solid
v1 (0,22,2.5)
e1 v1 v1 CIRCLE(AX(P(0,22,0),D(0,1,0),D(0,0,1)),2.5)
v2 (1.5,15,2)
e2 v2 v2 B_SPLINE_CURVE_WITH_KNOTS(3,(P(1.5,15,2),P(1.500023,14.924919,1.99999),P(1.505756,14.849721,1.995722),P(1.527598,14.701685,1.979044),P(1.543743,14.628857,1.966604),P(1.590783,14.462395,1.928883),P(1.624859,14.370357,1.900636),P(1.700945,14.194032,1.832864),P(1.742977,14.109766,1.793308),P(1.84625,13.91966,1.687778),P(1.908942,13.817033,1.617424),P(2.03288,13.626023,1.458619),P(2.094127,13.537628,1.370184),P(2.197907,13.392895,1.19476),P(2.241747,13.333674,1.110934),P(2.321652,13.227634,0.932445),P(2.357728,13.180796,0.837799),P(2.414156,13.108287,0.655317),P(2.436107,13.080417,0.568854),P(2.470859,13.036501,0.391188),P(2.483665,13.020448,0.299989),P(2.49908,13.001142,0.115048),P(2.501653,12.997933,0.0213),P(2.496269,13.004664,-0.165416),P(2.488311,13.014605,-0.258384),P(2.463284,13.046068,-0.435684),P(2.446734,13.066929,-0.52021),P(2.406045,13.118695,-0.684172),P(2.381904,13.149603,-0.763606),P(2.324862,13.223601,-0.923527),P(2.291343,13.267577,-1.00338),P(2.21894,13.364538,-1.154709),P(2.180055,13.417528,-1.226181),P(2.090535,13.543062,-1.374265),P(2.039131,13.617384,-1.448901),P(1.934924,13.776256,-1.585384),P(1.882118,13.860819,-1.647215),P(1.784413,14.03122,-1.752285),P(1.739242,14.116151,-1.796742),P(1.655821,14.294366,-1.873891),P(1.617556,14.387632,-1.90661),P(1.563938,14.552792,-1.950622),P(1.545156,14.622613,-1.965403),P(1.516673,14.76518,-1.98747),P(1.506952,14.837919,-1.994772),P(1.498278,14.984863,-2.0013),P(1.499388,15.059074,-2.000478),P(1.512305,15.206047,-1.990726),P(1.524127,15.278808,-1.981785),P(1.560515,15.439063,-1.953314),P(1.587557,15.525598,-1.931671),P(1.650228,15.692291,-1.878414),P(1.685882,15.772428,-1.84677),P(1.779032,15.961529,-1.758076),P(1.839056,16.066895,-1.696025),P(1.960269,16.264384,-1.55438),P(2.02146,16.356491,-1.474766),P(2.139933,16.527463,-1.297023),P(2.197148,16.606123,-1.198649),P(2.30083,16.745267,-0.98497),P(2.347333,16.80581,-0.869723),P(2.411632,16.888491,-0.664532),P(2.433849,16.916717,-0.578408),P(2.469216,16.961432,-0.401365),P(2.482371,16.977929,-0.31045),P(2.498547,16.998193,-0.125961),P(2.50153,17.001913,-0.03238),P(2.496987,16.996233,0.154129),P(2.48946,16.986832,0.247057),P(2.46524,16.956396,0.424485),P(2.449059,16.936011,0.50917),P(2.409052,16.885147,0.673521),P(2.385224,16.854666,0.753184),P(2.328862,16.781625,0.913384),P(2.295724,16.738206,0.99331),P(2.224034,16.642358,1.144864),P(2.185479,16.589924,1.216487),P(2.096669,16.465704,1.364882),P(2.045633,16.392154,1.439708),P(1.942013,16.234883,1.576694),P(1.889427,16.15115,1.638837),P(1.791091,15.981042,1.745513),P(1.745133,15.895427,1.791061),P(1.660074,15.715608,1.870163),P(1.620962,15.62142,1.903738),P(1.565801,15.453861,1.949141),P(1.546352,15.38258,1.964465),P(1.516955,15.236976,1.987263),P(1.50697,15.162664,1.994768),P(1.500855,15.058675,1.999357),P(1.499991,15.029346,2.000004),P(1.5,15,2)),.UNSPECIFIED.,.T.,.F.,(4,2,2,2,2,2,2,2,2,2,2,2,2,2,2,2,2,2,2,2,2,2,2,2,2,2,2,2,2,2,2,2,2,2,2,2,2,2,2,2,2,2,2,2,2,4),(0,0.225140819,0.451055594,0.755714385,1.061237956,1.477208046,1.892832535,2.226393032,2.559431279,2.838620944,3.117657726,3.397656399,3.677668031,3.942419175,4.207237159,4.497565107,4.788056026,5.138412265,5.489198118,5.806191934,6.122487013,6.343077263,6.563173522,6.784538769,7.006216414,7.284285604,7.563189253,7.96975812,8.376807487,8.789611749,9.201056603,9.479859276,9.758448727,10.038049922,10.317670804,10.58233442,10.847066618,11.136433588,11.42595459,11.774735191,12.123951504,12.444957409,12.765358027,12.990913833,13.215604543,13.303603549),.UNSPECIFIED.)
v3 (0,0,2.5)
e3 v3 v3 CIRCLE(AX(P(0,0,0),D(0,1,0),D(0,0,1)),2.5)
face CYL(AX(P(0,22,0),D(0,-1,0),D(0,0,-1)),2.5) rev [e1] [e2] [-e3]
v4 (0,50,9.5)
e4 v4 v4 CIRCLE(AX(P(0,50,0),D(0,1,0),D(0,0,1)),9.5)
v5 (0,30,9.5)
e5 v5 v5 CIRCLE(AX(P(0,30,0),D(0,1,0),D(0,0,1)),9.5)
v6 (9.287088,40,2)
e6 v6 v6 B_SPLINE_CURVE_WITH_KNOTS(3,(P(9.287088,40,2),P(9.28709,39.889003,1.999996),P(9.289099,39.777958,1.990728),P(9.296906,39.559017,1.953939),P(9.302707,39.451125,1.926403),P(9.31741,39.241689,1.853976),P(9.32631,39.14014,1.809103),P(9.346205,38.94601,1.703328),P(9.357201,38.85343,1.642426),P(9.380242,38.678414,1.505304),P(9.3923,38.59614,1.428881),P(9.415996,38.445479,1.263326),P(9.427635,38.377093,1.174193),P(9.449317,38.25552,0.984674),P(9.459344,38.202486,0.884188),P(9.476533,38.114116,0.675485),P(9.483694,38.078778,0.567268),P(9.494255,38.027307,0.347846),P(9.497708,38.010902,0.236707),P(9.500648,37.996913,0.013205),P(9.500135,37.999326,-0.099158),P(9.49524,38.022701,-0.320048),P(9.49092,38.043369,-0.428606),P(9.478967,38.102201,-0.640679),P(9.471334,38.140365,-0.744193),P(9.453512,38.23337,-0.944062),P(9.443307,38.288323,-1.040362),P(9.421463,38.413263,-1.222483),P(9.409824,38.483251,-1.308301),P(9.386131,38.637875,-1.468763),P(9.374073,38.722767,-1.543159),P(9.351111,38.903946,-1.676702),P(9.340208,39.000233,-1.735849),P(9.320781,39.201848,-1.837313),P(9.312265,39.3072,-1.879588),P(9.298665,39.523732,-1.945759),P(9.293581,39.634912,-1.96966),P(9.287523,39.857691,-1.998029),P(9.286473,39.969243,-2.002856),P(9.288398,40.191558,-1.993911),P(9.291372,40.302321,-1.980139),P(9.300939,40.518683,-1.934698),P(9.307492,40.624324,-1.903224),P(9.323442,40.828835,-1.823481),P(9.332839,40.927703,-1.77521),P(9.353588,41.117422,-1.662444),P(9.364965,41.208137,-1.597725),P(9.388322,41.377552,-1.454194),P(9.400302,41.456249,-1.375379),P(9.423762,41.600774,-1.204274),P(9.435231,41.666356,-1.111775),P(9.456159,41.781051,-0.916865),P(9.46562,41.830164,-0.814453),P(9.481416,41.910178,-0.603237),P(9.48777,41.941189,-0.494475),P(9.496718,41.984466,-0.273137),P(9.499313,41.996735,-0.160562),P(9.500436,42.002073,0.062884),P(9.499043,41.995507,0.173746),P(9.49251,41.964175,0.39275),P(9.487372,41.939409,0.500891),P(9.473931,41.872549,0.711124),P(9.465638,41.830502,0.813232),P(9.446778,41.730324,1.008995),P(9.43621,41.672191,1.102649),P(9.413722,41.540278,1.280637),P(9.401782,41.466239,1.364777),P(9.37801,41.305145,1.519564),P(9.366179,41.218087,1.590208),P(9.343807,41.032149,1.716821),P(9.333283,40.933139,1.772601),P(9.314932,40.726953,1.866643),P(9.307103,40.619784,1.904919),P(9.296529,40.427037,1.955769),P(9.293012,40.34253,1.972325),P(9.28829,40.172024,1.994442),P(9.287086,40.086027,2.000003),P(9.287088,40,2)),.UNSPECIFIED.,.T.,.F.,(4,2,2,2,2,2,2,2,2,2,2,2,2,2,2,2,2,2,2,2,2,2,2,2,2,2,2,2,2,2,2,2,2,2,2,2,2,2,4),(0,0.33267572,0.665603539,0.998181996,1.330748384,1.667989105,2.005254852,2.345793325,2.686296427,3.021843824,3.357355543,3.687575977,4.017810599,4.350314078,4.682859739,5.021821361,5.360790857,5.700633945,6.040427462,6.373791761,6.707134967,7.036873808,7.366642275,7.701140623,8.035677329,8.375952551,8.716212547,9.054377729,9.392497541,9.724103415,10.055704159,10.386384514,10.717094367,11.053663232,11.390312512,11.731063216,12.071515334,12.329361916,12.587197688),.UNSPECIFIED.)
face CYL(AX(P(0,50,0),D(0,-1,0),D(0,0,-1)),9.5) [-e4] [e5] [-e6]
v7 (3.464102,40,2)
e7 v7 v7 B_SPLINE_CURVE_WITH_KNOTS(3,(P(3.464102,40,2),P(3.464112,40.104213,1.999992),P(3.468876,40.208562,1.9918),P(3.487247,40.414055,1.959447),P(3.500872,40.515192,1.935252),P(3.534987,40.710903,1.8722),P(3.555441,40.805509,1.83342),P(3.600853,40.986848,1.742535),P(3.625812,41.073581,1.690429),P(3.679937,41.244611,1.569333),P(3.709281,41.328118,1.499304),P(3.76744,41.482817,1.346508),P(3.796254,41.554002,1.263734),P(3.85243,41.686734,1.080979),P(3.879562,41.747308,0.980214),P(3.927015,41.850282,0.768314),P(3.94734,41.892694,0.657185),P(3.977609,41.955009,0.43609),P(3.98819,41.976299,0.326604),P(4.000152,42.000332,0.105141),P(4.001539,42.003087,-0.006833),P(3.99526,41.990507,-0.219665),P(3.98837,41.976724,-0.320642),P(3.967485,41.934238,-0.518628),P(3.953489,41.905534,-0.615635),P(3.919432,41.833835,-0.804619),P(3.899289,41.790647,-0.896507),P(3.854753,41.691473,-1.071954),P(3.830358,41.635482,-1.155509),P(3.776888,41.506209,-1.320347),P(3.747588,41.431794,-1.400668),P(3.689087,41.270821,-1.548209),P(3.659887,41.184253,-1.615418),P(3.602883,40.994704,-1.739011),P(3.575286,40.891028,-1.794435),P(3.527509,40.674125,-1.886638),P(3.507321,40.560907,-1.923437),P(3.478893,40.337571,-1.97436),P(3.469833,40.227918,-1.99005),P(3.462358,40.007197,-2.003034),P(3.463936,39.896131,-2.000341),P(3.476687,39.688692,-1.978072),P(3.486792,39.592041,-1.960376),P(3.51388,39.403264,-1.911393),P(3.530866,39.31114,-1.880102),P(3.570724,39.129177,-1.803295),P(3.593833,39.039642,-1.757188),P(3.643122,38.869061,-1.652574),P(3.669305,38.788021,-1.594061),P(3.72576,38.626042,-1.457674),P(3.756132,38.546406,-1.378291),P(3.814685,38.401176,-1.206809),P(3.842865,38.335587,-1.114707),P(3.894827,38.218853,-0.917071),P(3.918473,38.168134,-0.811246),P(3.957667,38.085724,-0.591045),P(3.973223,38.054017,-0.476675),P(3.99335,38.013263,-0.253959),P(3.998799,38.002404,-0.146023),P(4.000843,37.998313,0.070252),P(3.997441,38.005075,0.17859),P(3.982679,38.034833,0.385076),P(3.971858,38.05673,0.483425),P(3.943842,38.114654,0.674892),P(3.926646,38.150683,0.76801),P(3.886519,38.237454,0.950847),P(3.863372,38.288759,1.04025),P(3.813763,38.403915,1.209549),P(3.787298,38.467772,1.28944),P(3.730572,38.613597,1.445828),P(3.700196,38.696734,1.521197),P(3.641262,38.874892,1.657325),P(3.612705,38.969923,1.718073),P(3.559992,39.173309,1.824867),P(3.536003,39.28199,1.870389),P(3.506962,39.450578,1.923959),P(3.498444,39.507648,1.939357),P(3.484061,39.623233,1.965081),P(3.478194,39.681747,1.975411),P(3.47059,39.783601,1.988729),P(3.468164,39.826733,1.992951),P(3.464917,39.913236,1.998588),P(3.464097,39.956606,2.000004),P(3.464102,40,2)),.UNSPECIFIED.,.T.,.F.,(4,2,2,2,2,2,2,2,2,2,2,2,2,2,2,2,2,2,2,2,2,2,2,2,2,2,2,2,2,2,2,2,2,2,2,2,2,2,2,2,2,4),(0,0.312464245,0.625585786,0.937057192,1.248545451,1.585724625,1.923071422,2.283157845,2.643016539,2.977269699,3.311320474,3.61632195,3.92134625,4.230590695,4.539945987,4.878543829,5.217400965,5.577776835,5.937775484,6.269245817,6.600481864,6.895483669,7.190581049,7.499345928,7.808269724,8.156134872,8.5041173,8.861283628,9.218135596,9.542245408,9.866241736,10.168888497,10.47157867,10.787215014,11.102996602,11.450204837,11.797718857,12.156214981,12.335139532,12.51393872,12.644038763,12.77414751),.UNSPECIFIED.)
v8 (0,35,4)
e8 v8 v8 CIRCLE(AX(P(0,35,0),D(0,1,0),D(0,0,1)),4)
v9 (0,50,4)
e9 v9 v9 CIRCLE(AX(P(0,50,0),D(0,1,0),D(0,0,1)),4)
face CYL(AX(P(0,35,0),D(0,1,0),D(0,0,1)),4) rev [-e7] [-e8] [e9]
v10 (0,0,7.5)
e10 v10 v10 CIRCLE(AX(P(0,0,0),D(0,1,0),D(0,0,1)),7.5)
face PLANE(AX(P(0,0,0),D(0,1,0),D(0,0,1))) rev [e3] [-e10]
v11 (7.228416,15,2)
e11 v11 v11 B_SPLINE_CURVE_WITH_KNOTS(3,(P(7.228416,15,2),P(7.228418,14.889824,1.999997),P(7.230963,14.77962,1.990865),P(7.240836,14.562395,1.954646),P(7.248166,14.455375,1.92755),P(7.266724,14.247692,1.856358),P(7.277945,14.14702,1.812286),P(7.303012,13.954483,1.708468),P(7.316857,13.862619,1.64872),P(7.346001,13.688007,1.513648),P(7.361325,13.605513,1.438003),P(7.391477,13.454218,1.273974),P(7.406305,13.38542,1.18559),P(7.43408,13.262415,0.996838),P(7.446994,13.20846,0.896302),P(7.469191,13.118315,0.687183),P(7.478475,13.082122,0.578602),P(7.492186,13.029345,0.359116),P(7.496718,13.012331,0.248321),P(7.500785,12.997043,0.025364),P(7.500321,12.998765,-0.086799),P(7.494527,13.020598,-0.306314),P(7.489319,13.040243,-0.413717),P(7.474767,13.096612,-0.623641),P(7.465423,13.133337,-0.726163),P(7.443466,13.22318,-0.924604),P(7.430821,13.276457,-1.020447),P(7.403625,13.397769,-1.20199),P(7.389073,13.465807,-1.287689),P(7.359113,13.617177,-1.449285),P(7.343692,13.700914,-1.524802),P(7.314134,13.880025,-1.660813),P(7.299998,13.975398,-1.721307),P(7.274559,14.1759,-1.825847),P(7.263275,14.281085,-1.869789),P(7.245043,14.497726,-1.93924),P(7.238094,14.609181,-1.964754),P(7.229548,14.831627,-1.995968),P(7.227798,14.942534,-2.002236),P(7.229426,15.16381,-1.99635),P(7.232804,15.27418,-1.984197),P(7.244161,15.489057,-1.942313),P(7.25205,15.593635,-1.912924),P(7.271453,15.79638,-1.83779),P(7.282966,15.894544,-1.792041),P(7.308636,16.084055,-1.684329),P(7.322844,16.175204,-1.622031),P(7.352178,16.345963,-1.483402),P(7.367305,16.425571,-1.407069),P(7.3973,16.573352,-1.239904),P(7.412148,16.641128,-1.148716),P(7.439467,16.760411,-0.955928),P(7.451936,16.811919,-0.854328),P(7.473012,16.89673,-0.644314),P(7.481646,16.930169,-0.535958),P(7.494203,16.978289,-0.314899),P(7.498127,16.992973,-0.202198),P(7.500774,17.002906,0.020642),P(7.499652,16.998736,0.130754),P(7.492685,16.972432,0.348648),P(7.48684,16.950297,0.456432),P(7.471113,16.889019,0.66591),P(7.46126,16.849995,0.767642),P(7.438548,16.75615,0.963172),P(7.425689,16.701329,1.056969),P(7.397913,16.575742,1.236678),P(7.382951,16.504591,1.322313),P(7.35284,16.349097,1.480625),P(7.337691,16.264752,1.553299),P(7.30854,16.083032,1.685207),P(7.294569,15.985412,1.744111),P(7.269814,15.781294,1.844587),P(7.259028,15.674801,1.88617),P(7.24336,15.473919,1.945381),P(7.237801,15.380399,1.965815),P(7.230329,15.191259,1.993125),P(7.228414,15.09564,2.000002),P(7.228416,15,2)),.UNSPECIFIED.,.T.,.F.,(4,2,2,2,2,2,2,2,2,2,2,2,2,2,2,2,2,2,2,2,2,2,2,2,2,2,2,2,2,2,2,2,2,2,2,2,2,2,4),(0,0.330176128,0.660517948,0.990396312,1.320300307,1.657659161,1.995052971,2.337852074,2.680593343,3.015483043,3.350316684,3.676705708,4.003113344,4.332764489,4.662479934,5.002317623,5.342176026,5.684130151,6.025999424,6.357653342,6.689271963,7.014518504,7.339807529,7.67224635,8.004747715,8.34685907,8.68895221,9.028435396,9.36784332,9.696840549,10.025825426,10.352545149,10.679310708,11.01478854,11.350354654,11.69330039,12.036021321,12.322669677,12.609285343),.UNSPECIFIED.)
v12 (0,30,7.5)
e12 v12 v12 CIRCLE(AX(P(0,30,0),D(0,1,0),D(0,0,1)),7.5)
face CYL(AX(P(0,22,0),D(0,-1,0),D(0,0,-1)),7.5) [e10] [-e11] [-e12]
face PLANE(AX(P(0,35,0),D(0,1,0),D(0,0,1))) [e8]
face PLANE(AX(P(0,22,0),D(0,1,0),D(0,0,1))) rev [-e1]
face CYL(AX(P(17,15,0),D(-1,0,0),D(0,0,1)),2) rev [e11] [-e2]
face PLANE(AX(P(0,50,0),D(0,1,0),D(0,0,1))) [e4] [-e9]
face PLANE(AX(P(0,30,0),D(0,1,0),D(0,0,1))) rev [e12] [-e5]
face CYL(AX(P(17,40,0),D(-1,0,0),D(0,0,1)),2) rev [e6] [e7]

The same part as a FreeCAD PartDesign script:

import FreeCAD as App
import Part
import Sketcher

doc = App.newDocument("Part")
body = doc.addObject("PartDesign::Body", "Body")

# Sketch on XZ plane
sketch1 = body.newObject("Sketcher::SketchObject", "Sketch")
sketch1.AttachmentSupport = (doc.getObject("XZ_Plane"), [""])
sketch1.MapMode = "FlatFace"
sketch1.addGeometry(Part.Circle(App.Vector(0, 0, 0), App.Vector(0, 0, 1), 7.5), False)
sketch1.addGeometry(Part.Circle(App.Vector(0, 0, 0), App.Vector(0, 0, 1), 2.5), False)
sketch1.addConstraint(Sketcher.Constraint("Coincident", 0, 3, -1, 1))
sketch1.addConstraint(Sketcher.Constraint("Coincident", 1, 3, -1, 1))
sketch1.addConstraint(Sketcher.Constraint("Diameter", 0, 15.0))
sketch1.addConstraint(Sketcher.Constraint("Diameter", 1, 5.0))
pad1 = body.newObject("PartDesign::Pad", "Pad")
pad1.Profile = sketch1
pad1.Length = 22
pad1.Reversed = True

# Sketch on XZ plane
sketch2 = body.newObject("Sketcher::SketchObject", "Sketch001")
sketch2.AttachmentSupport = (doc.getObject("XZ_Plane"), [""])
sketch2.MapMode = "FlatFace"
sketch2.AttachmentOffset = App.Placement(App.Vector(0, 0, -22), App.Rotation())
sketch2.addGeometry(Part.Circle(App.Vector(0, 0, 0), App.Vector(0, 0, 1), 7.5), False)
sketch2.addConstraint(Sketcher.Constraint("Coincident", 0, 3, -1, 1))
sketch2.addConstraint(Sketcher.Constraint("Diameter", 0, 15.0))
pad2 = body.newObject("PartDesign::Pad", "Pad001")
pad2.Profile = sketch2
pad2.Length = 8
pad2.Reversed = True

# Sketch on XZ plane
sketch3 = body.newObject("Sketcher::SketchObject", "Sketch002")
sketch3.AttachmentSupport = (doc.getObject("XZ_Plane"), [""])
sketch3.MapMode = "FlatFace"
sketch3.AttachmentOffset = App.Placement(App.Vector(0, 0, -30), App.Rotation())
sketch3.addGeometry(Part.Circle(App.Vector(0, 0, 0), App.Vector(0, 0, 1), 9.5), False)
sketch3.addConstraint(Sketcher.Constraint("Coincident", 0, 3, -1, 1))
sketch3.addConstraint(Sketcher.Constraint("Diameter", 0, 19.0))
pad3 = body.newObject("PartDesign::Pad", "Pad002")
pad3.Profile = sketch3
pad3.Length = 20
pad3.Reversed = True

# Sketch on XZ plane
sketch4 = body.newObject("Sketcher::SketchObject", "Sketch003")
sketch4.AttachmentSupport = (doc.getObject("XZ_Plane"), [""])
sketch4.MapMode = "FlatFace"
sketch4.AttachmentOffset = App.Placement(App.Vector(0, 0, -50), App.Rotation())
sketch4.addGeometry(Part.Circle(App.Vector(0, 0, 0), App.Vector(0, 0, 1), 4), False)
sketch4.addConstraint(Sketcher.Constraint("Coincident", 0, 3, -1, 1))
sketch4.addConstraint(Sketcher.Constraint("Diameter", 0, 8.0))
pocket1 = body.newObject("PartDesign::Pocket", "Pocket")
pocket1.Profile = sketch4
pocket1.Length = 15
pocket1.Reversed = True

# Sketch on YZ plane
sketch5 = body.newObject("Sketcher::SketchObject", "Sketch004")
sketch5.AttachmentSupport = (doc.getObject("YZ_Plane"), [""])
sketch5.MapMode = "FlatFace"
sketch5.addGeometry(Part.Circle(App.Vector(15, 0, 0), App.Vector(0, 0, 1), 2), False)
sketch5.addGeometry(Part.Circle(App.Vector(40, 0, 0), App.Vector(0, 0, 1), 2), False)
sketch5.addConstraint(Sketcher.Constraint("Equal", 0, 1))
sketch5.addConstraint(Sketcher.Constraint("PointOnObject", 0, 3, -1))
sketch5.addConstraint(Sketcher.Constraint("PointOnObject", 1, 3, -1))
sketch5.addConstraint(Sketcher.Constraint("Diameter", 0, 4.0))
sketch5.addConstraint(Sketcher.Constraint("DistanceX", -1, 1, 0, 3, 15.0))
sketch5.addConstraint(Sketcher.Constraint("DistanceX", -1, 1, 1, 3, 40.0))
pocket2 = body.newObject("PartDesign::Pocket", "Pocket001")
pocket2.Profile = sketch5
pocket2.Length = 17
pocket2.Reversed = True

doc.recompute()
